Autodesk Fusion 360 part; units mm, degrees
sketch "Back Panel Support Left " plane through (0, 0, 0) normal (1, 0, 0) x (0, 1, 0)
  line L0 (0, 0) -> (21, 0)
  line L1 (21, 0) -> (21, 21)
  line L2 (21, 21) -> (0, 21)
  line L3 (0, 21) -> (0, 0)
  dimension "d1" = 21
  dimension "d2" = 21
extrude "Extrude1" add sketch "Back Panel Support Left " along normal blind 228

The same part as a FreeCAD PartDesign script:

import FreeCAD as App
import Part
import Sketcher
from FreeCAD import Vector
Q = App.Units.Quantity


def add_polygon(sketch, points):
    """Adds a closed chain of lines whose ends are joined by coincident constraints."""
    first, n = sketch.GeometryCount, len(points)
    for a, b in zip(points, points[1:] + points[:1]):
        sketch.addGeometry(Part.LineSegment(App.Vector(*a, 0), App.Vector(*b, 0)), False)
    for i in range(n):
        sketch.addConstraint(Sketcher.Constraint("Coincident", first + i, 2, first + (i + 1) % n, 1))

doc = App.newDocument("Part")
params = doc.addObject("Spreadsheet::Sheet", "Params")
for row, (alias, value) in enumerate([
    ("sketch1_width", "21 mm"),
    ("pad1_length", "228 mm"),
], start=1):
    params.set(f"A{row}", alias)
    params.set(f"B{row}", "=" + value)
    params.setAlias(f"B{row}", alias)

body = doc.addObject("PartDesign::Body", "Body")

sketch1 = doc.addObject("Sketcher::SketchObject", "Sketch")
body.addObject(sketch1)
sketch1.AttachmentSupport = (doc.YZ_Plane, [""])
sketch1.MapMode = "FlatFace"
add_polygon(sketch1, [(0, 21), (0, 0), (21, 0), (21, 21)])
sketch1.addConstraint([
    Sketcher.Constraint("Vertical", 0),
    Sketcher.Constraint("Horizontal", 1),
    Sketcher.Constraint("Vertical", 2),
    Sketcher.Constraint("Horizontal", 3),
    Sketcher.Constraint("Coincident", 0, 2, -1, 1),
    Sketcher.Constraint("Equal", 3, 0),
    Sketcher.Constraint("DistanceX", 1, 1, 1, 2, Q("21 mm")),
])
sketch1.setExpression("Constraints[10]", "Params.sketch1_width")
pad1 = doc.addObject("PartDesign::Pad", "Pad")
body.addObject(pad1)
pad1.Profile = sketch1
pad1.setExpression("Length", "Params.pad1_length")

doc.recompute()
